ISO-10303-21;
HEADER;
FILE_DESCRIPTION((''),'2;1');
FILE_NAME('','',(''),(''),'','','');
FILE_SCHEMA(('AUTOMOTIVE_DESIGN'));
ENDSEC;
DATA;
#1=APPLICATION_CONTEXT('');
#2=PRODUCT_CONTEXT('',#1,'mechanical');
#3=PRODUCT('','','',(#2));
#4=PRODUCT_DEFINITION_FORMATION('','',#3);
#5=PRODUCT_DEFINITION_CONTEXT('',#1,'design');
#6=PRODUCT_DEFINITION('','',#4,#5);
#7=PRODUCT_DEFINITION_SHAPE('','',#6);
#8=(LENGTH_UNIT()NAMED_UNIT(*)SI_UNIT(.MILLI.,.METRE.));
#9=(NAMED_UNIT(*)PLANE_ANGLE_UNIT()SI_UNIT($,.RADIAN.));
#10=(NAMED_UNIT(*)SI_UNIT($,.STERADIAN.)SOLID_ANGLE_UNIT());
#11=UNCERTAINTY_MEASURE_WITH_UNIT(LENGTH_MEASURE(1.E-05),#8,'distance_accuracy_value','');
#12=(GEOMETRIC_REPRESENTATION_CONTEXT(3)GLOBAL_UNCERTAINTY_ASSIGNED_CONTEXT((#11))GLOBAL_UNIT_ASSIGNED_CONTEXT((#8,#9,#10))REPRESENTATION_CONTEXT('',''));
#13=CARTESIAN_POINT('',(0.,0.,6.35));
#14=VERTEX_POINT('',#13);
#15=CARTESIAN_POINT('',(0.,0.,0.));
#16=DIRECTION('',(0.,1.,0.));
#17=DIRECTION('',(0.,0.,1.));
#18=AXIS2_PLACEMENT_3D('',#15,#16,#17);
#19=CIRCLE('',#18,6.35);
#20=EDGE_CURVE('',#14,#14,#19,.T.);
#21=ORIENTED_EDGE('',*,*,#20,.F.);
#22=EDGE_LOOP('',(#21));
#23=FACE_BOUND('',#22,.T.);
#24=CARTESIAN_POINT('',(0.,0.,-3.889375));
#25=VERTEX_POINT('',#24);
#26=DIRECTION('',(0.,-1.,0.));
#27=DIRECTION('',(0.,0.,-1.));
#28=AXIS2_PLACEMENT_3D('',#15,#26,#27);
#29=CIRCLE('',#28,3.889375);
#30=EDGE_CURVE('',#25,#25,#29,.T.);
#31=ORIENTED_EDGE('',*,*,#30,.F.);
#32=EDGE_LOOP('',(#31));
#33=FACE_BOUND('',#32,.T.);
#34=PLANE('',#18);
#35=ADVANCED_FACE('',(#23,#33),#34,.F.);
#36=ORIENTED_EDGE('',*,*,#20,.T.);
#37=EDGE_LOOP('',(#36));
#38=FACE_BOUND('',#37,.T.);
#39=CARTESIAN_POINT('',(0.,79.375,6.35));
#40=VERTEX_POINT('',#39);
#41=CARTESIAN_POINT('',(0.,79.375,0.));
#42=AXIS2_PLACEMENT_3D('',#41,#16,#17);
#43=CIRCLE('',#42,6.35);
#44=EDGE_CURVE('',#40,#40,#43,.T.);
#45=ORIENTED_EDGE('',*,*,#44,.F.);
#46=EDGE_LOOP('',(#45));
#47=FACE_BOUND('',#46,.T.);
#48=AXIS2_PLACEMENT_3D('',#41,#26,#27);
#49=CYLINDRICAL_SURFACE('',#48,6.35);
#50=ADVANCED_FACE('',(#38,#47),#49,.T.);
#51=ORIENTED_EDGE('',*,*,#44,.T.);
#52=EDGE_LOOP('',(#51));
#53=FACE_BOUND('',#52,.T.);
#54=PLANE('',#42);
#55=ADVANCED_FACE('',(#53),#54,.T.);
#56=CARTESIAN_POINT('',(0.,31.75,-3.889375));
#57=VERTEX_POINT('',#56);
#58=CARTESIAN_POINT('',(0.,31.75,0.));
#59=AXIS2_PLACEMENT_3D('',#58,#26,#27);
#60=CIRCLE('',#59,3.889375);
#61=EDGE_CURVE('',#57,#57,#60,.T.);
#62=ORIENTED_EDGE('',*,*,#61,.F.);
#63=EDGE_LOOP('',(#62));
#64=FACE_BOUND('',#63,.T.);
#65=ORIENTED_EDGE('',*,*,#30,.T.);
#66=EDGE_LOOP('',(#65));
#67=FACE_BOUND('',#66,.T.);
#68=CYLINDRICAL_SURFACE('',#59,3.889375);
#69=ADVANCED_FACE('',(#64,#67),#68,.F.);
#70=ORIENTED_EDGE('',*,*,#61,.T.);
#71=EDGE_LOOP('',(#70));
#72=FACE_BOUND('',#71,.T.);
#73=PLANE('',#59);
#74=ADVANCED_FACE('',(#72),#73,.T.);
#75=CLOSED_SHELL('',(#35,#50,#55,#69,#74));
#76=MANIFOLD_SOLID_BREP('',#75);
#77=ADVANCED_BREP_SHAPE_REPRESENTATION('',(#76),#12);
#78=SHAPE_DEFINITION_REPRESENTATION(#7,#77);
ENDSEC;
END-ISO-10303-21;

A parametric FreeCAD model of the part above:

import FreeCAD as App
import Part
import Sketcher

V = App.Vector
Q = App.Units.Quantity

doc = App.newDocument("Part")
params = doc.addObject("Spreadsheet::Sheet", "Params")
for row, (alias, value) in enumerate([
    ("sketch1_diameter", "0.5 in"),
    ("pad1_length", "3.125 in"),
    ("pocket1_length", "1.25 in"),
], start=1):
    params.set(f"A{row}", alias)
    params.set(f"B{row}", "=" + value)
    params.setAlias(f"B{row}", alias)

body = doc.addObject("PartDesign::Body", "Body")

sketch1 = body.newObject("Sketcher::SketchObject", "Sketch")
sketch1.AttachmentSupport = (doc.getObject("XZ_Plane"), [""])
sketch1.MapMode = "FlatFace"
sketch1.addGeometry(Part.Circle(V(0, 0, 0), V(0, 0, 1), 6), False)
sketch1.addConstraint(Sketcher.Constraint("Coincident", 0, 3, -1, 1))
sketch1.addConstraint(Sketcher.Constraint("Diameter", 0, Q("0.5 in")))
sketch1.setExpression("Constraints[1]", "Params.sketch1_diameter")
pad1 = body.newObject("PartDesign::Pad", "Pad")
pad1.Profile = sketch1
pad1.setExpression("Length", "Params.pad1_length")
pad1.Reversed = True

sketch2 = body.newObject("Sketcher::SketchObject", "Sketch001")
sketch2.AttachmentSupport = (doc.getObject("XZ_Plane"), [""])
sketch2.MapMode = "FlatFace"
sketch2.addGeometry(Part.Circle(V(0, 0, 0), V(0, 0, 1), 3.9), False)
sketch2.addConstraint(Sketcher.Constraint("Coincident", 0, 3, -1, 1))
sketch2.addConstraint(Sketcher.Constraint("Diameter", 0, Q("7.77875 mm")))
pocket1 = body.newObject("PartDesign::Pocket", "Pocket")
pocket1.Profile = sketch2
pocket1.setExpression("Length", "Params.pocket1_length")

doc.recompute()
